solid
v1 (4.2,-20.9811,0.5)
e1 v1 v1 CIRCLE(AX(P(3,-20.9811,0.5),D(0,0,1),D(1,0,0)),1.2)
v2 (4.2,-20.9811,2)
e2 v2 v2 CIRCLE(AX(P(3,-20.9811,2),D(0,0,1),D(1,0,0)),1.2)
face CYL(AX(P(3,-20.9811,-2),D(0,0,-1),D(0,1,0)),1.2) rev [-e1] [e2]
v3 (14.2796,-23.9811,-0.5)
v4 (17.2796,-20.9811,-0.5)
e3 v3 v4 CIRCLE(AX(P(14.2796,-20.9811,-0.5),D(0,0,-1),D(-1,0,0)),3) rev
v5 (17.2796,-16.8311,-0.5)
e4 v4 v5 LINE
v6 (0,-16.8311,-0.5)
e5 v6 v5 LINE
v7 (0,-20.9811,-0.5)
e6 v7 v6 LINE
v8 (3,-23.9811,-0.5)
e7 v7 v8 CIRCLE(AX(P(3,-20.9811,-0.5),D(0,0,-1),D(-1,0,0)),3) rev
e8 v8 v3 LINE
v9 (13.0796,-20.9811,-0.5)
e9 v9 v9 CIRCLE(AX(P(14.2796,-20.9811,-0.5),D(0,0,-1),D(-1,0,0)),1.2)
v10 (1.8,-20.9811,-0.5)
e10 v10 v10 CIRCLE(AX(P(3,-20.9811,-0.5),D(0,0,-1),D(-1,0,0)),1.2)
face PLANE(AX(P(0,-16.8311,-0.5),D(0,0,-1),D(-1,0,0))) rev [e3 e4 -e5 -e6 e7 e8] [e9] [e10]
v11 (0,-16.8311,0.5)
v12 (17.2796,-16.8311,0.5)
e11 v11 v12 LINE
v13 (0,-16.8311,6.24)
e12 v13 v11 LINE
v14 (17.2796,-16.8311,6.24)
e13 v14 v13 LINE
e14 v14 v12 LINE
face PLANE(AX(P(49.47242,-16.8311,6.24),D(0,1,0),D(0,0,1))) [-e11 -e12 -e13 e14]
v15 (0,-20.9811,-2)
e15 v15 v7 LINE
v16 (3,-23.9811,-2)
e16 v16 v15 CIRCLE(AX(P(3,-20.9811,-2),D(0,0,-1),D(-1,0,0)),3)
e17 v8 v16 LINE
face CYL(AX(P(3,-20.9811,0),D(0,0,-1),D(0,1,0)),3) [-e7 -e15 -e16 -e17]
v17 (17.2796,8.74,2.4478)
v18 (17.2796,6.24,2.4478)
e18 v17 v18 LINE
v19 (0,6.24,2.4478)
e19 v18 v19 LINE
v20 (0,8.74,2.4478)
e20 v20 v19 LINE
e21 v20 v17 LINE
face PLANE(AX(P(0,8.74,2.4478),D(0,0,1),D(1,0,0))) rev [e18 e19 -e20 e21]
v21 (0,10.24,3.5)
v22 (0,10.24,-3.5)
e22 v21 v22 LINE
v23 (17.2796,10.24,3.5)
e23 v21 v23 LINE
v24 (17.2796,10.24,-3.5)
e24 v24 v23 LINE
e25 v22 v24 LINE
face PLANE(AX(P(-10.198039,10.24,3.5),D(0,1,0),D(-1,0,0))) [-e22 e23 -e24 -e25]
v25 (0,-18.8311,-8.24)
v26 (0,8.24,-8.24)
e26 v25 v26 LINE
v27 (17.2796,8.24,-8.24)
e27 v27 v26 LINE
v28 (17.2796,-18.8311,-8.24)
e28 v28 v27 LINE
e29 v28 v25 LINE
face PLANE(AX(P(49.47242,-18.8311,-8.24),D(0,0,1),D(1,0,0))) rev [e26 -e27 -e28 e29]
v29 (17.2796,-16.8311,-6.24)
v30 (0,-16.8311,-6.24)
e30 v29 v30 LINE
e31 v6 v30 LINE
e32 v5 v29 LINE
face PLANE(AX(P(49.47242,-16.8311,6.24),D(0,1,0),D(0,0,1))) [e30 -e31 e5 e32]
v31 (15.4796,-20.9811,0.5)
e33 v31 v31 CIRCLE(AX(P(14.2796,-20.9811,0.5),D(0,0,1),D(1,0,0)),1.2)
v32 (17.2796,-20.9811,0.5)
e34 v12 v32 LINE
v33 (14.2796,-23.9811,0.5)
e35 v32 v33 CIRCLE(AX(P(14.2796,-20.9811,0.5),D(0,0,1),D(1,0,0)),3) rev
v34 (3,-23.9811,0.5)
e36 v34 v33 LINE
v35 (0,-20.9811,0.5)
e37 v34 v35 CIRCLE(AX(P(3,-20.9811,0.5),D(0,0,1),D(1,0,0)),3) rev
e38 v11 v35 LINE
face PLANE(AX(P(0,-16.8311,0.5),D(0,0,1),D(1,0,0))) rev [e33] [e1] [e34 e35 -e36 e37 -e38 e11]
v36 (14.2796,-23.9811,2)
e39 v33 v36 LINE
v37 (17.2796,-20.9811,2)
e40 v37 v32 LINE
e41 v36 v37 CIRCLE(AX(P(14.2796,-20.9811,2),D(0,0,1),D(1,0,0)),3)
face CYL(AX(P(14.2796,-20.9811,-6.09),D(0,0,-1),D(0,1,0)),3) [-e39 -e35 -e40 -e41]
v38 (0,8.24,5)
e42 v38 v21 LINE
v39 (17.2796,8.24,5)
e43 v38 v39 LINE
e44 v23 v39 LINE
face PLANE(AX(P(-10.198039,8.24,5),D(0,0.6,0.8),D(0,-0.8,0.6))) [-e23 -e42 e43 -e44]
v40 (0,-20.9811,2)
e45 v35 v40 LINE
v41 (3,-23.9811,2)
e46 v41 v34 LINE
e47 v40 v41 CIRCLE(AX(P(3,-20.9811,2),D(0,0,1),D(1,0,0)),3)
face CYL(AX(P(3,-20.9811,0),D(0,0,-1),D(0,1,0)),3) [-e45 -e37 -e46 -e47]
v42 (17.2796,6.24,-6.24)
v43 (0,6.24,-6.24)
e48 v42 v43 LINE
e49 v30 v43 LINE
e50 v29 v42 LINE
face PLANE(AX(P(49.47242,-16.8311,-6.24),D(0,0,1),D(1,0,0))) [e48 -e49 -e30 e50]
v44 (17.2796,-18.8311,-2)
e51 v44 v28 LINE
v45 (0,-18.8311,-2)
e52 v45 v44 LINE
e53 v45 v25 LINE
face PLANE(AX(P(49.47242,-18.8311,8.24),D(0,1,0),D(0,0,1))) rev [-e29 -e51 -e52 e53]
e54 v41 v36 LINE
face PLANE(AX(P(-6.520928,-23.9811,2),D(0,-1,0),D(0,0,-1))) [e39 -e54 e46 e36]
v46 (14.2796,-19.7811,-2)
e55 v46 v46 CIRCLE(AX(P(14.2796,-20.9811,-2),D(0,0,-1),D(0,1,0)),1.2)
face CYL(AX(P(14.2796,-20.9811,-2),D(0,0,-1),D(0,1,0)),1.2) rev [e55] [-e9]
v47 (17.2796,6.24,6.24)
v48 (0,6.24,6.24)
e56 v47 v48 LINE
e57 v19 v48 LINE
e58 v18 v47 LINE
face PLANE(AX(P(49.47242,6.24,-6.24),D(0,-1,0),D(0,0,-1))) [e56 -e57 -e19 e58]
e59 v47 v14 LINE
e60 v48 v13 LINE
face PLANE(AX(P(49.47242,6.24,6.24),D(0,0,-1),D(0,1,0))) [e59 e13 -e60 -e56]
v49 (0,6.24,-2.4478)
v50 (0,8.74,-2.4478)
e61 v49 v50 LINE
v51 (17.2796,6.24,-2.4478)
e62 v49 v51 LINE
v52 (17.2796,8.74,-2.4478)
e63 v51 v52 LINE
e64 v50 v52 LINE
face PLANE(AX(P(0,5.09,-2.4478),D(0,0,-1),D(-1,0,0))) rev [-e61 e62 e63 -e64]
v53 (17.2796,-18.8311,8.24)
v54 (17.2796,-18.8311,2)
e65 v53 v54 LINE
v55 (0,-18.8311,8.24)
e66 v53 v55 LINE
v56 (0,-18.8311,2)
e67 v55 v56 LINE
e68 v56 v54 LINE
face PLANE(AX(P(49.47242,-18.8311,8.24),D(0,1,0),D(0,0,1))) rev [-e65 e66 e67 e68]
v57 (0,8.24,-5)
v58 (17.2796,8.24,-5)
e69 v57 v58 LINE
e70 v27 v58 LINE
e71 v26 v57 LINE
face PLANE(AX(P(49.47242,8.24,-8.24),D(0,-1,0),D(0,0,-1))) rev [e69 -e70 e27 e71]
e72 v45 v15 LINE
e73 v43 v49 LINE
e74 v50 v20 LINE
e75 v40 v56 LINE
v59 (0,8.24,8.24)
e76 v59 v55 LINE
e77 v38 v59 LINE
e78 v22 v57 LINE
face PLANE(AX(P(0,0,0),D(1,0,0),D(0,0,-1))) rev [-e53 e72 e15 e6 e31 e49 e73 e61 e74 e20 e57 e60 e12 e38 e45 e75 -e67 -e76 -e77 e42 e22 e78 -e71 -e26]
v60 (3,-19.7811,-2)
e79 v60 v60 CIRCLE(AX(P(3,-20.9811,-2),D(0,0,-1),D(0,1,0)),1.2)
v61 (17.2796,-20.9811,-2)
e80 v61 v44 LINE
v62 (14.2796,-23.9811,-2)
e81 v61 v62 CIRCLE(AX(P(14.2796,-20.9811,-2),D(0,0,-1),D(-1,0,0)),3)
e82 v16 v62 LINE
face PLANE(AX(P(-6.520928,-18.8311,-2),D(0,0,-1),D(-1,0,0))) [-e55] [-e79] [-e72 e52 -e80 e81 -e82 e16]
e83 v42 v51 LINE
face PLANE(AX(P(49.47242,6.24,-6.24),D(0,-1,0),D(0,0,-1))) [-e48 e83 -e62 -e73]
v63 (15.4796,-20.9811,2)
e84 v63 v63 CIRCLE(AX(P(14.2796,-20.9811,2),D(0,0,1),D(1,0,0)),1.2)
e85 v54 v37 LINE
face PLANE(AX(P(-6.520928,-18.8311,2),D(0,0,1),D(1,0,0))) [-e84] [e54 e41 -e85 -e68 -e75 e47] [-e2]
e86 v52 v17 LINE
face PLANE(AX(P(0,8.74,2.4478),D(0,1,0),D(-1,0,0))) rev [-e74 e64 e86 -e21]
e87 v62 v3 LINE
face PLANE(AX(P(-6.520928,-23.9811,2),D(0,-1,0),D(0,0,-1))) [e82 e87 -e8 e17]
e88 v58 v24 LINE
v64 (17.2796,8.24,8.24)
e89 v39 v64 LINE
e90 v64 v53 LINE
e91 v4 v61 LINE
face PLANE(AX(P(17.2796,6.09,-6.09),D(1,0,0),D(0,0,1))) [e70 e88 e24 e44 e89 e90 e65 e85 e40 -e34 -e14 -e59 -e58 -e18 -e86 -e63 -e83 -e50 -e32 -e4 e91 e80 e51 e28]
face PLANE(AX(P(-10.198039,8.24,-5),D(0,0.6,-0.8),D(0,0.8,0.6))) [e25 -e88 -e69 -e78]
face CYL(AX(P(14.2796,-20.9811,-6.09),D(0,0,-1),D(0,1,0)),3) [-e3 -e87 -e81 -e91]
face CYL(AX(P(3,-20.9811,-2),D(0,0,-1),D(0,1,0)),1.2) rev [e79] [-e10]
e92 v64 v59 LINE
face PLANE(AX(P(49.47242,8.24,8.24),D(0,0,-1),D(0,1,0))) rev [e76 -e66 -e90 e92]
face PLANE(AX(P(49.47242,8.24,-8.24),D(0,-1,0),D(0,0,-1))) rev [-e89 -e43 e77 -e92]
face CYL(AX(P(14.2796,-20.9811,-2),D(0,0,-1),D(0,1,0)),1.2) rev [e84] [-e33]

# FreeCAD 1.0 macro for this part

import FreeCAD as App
import Part
import Sketcher

V = App.Vector
Q = App.Units.Quantity


def edges_at(feature, points):
    """Names of the edges that pass closest to the given points."""
    edges = feature.Shape.Edges
    near = lambda p: min(range(len(edges)), key=lambda i: edges[i].distToShape(Part.Vertex(*p))[0])
    return sorted({f"Edge{near(p) + 1}" for p in points})

doc = App.newDocument("Part")
params = doc.addObject("Spreadsheet::Sheet", "Params")
for row, (alias, value) in enumerate([
    ("sketch1_height", "16.48 mm"),
    ("pad1_length", "17.2796 mm"),
    ("sketch2_height", "10 mm"),
    ("sketch2_height2", "7 mm"),
    ("pad2_length", "17.2796 mm"),
    ("sketch3_width", "3.65 mm"),
    ("sketch4_height", "4 mm"),
    ("sketch4_width", "5.15 mm"),
    ("pad3_length", "17.2796 mm"),
    ("fillet_radius", "3 mm"),
    ("sketch5_height", "1 mm"),
    ("sketch5_width", "7.15 mm"),
    ("sketch6_diameter", "2.4 mm"),
    ("hole_diameter", "2.4 mm"),
], start=1):
    params.set(f"A{row}", alias)
    params.set(f"B{row}", "=" + value)
    params.setAlias(f"B{row}", alias)

body = doc.addObject("PartDesign::Body", "Body")

# Sketch on YZ plane
sketch1 = body.newObject("Sketcher::SketchObject", "Sketch")
sketch1.AttachmentSupport = (doc.getObject("YZ_Plane"), [""])
sketch1.MapMode = "FlatFace"
sketch1.addGeometry([
    Part.LineSegment(V(8, 8, 0), V(-19, 8, 0)),  # 0
    Part.LineSegment(V(-19, 8, 0), V(-19, -8, 0)),  # 1
    Part.LineSegment(V(-19, -8, 0), V(8, -8, 0)),  # 2
    Part.LineSegment(V(8, -8, 0), V(8, 8, 0)),  # 3
    Part.LineSegment(V(-17, -6, 0), V(-17, 6, 0)),  # 4
    Part.LineSegment(V(-17, 6, 0), V(6, 6, 0)),  # 5
    Part.LineSegment(V(6, 6, 0), V(6, -6, 0)),  # 6
    Part.LineSegment(V(6, -6, 0), V(-17, -6, 0)),  # 7
], False)
sketch1.addConstraint([
    Sketcher.Constraint("Coincident", 0, 2, 1, 1),
    Sketcher.Constraint("Coincident", 1, 2, 2, 1),
    Sketcher.Constraint("Coincident", 2, 2, 3, 1),
    Sketcher.Constraint("Coincident", 3, 2, 0, 1),
    Sketcher.Constraint("Coincident", 4, 2, 5, 1),
    Sketcher.Constraint("Coincident", 5, 2, 6, 1),
    Sketcher.Constraint("Coincident", 6, 2, 7, 1),
    Sketcher.Constraint("Coincident", 7, 2, 4, 1),
    Sketcher.Constraint("Horizontal", 0),
    Sketcher.Constraint("Vertical", 1),
    Sketcher.Constraint("Horizontal", 2),
    Sketcher.Constraint("Vertical", 3),
    Sketcher.Constraint("Vertical", 4),
    Sketcher.Constraint("Horizontal", 5),
    Sketcher.Constraint("Vertical", 6),
    Sketcher.Constraint("Horizontal", 7),
    Sketcher.Constraint("DistanceX", 0, 2, 4, 2, Q("2 mm")),
    Sketcher.Constraint("DistanceY", 4, 2, 0, 2, Q("2 mm")),
    Sketcher.Constraint("DistanceX", 5, 2, 3, 2, Q("2 mm")),
    Sketcher.Constraint("DistanceY", 2, 2, 6, 2, Q("2 mm")),
    Sketcher.Constraint("DistanceY", 1, 2, 1, 1, Q("16.48 mm")),
    Sketcher.Constraint("DistanceY", -1, 1, 0, 2, Q("8.24 mm")),
    Sketcher.Constraint("DistanceX", -1, 1, 2, 2, Q("8.24 mm")),
    Sketcher.Constraint("DistanceX", 0, 2, 0, 1, Q("27.0711 mm")),
])
sketch1.setExpression("Constraints[20]", "Params.sketch1_height")
pad1 = body.newObject("PartDesign::Pad", "Pad")
pad1.Profile = sketch1
pad1.setExpression("Length", "Params.pad1_length")

# Sketch on YZ plane
sketch2 = body.newObject("Sketcher::SketchObject", "Sketch001")
sketch2.AttachmentSupport = (doc.getObject("YZ_Plane"), [""])
sketch2.MapMode = "FlatFace"
sketch2.AttachmentOffset = App.Placement(V(0, 0, 17.2796), App.Rotation())
sketch2.addGeometry([
    Part.LineSegment(V(8.2, 5, 0), V(8.2, -5, 0)),
    Part.LineSegment(V(8.2, -5, 0), V(10.2, -3.5, 0)),
    Part.LineSegment(V(10.2, -3.5, 0), V(10.2, 3.5, 0)),
    Part.LineSegment(V(10.2, 3.5, 0), V(8.2, 5, 0)),
], False)
sketch2.addConstraint([
    Sketcher.Constraint("Coincident", 0, 2, 1, 1),
    Sketcher.Constraint("Coincident", 1, 2, 2, 1),
    Sketcher.Constraint("Coincident", 2, 2, 3, 1),
    Sketcher.Constraint("Coincident", 3, 2, 0, 1),
    Sketcher.Constraint("Vertical", 0),
    Sketcher.Constraint("Vertical", 2),
    Sketcher.Constraint("Equal", 1, 3),
    Sketcher.Constraint("DistanceY", 0, 2, 0, 1, Q("10 mm")),
    Sketcher.Constraint("DistanceY", 2, 1, 2, 2, Q("7 mm")),
    Sketcher.Constraint("DistanceY", 0, 2, -1, 1, Q("5 mm")),
    Sketcher.Constraint("DistanceX", 0, 2, 1, 2, Q("2 mm")),
    Sketcher.Constraint("DistanceX", -1, 1, 0, 2, Q("8.24 mm")),
])
sketch2.setExpression("Constraints[7]", "Params.sketch2_height")
sketch2.setExpression("Constraints[8]", "Params.sketch2_height2")
pad2 = body.newObject("PartDesign::Pad", "Pad001")
pad2.Profile = sketch2
pad2.setExpression("Length", "Params.pad2_length")
pad2.Reversed = True

# Sketch on YZ plane
sketch3 = body.newObject("Sketcher::SketchObject", "Sketch002")
sketch3.AttachmentSupport = (doc.getObject("YZ_Plane"), [""])
sketch3.MapMode = "FlatFace"
sketch3.AttachmentOffset = App.Placement(V(0, 0, 17.2796), App.Rotation())
sketch3.addGeometry([
    Part.LineSegment(V(8.7, 2.4, 0), V(5.1, 2.4, 0)),
    Part.LineSegment(V(5.1, 2.4, 0), V(5.1, -2.4, 0)),
    Part.LineSegment(V(5.1, -2.4, 0), V(8.7, -2.4, 0)),
    Part.LineSegment(V(8.7, -2.4, 0), V(8.7, 2.4, 0)),
], False)
sketch3.addConstraint([
    Sketcher.Constraint("Coincident", 0, 2, 1, 1),
    Sketcher.Constraint("Coincident", 1, 2, 2, 1),
    Sketcher.Constraint("Coincident", 2, 2, 3, 1),
    Sketcher.Constraint("Coincident", 3, 2, 0, 1),
    Sketcher.Constraint("Horizontal", 0),
    Sketcher.Constraint("Vertical", 1),
    Sketcher.Constraint("Horizontal", 2),
    Sketcher.Constraint("Vertical", 3),
    Sketcher.Constraint("DistanceX", 0, 2, 0, 1, Q("3.65 mm")),
    Sketcher.Constraint("DistanceX", -1, 1, 0, 2, Q("5.09 mm")),
    Sketcher.Constraint("DistanceY", 1, 2, 1, 1, Q("4.8956 mm")),
    Sketcher.Constraint("DistanceY", -1, 1, 0, 2, Q("2.4478 mm")),
])
sketch3.setExpression("Constraints[8]", "Params.sketch3_width")
pocket1 = body.newObject("PartDesign::Pocket", "Pocket")
pocket1.Profile = sketch3
pocket1.Type = "ThroughAll"

# Sketch on YZ plane
sketch4 = body.newObject("Sketcher::SketchObject", "Sketch003")
sketch4.AttachmentSupport = (doc.getObject("YZ_Plane"), [""])
sketch4.MapMode = "FlatFace"
sketch4.AttachmentOffset = App.Placement(V(0, 0, 17.2796), App.Rotation())
sketch4.addGeometry([
    Part.LineSegment(V(-18.8, 2, 0), V(-24, 2, 0)),
    Part.LineSegment(V(-24, 2, 0), V(-24, -2, 0)),
    Part.LineSegment(V(-24, -2, 0), V(-18.8, -2, 0)),
    Part.LineSegment(V(-18.8, -2, 0), V(-18.8, 2, 0)),
], False)
sketch4.addConstraint([
    Sketcher.Constraint("Coincident", 0, 2, 1, 1),
    Sketcher.Constraint("Coincident", 1, 2, 2, 1),
    Sketcher.Constraint("Coincident", 2, 2, 3, 1),
    Sketcher.Constraint("Coincident", 3, 2, 0, 1),
    Sketcher.Constraint("Horizontal", 0),
    Sketcher.Constraint("Vertical", 1),
    Sketcher.Constraint("Horizontal", 2),
    Sketcher.Constraint("Vertical", 3),
    Sketcher.Constraint("DistanceY", 1, 2, 1, 1, Q("4 mm")),
    Sketcher.Constraint("DistanceY", -1, 1, 0, 2, Q("2 mm")),
    Sketcher.Constraint("DistanceX", 0, 2, 0, 1, Q("5.15 mm")),
    Sketcher.Constraint("DistanceX", 0, 2, -1, 1, Q("23.9811 mm")),
])
sketch4.setExpression("Constraints[8]", "Params.sketch4_height")
sketch4.setExpression("Constraints[10]", "Params.sketch4_width")
pad3 = body.newObject("PartDesign::Pad", "Pad002")
pad3.Profile = sketch4
pad3.setExpression("Length", "Params.pad3_length")
pad3.Reversed = True
doc.recompute()

fillet = body.newObject("PartDesign::Fillet", "Fillet")
fillet.Base = (pad3, edges_at(pad3, [(17.28, -23.981, 0), (0, -23.981, 0)]))
fillet.setExpression("Radius", "Params.fillet_radius")

# Sketch on YZ plane
sketch5 = body.newObject("Sketcher::SketchObject", "Sketch004")
sketch5.AttachmentSupport = (doc.getObject("YZ_Plane"), [""])
sketch5.MapMode = "FlatFace"
sketch5.AttachmentOffset = App.Placement(V(0, 0, 17.2796), App.Rotation())
sketch5.addGeometry([
    Part.LineSegment(V(-16.8, 0.5, 0), V(-24, 0.5, 0)),
    Part.LineSegment(V(-24, 0.5, 0), V(-24, -0.5, 0)),
    Part.LineSegment(V(-24, -0.5, 0), V(-16.8, -0.5, 0)),
    Part.LineSegment(V(-16.8, -0.5, 0), V(-16.8, 0.5, 0)),
], False)
sketch5.addConstraint([
    Sketcher.Constraint("Coincident", 0, 2, 1, 1),
    Sketcher.Constraint("Coincident", 1, 2, 2, 1),
    Sketcher.Constraint("Coincident", 2, 2, 3, 1),
    Sketcher.Constraint("Coincident", 3, 2, 0, 1),
    Sketcher.Constraint("Horizontal", 0),
    Sketcher.Constraint("Vertical", 1),
    Sketcher.Constraint("Horizontal", 2),
    Sketcher.Constraint("Vertical", 3),
    Sketcher.Constraint("DistanceY", 1, 2, 1, 1, Q("1 mm")),
    Sketcher.Constraint("DistanceX", 0, 2, 0, 1, Q("7.15 mm")),
    Sketcher.Constraint("DistanceY", -1, 1, 0, 2, Q("0.5 mm")),
    Sketcher.Constraint("DistanceX", 0, 2, -1, 1, Q("23.9811 mm")),
])
sketch5.setExpression("Constraints[8]", "Params.sketch5_height")
sketch5.setExpression("Constraints[9]", "Params.sketch5_width")
pocket2 = body.newObject("PartDesign::Pocket", "Pocket001")
pocket2.Profile = sketch5
pocket2.Type = "ThroughAll"

# Sketch on XY plane
sketch6 = body.newObject("Sketcher::SketchObject", "Sketch005")
sketch6.AttachmentSupport = (doc.getObject("XY_Plane"), [""])
sketch6.MapMode = "FlatFace"
sketch6.AttachmentOffset = App.Placement(V(0, 0, -2), App.Rotation())
sketch6.addGeometry([
    Part.Circle(V(14.3, -21, 0), V(0, 0, 1), 1.2),
    Part.Circle(V(3, -21, 0), V(0, 0, 1), 1.2),
], False)
sketch6.addConstraint([
    Sketcher.Constraint("Equal", 0, 1),
    Sketcher.Constraint("Horizontal", 0, 3, 1, 3),
    Sketcher.Constraint("Diameter", 0, Q("2.4 mm")),
    Sketcher.Constraint("DistanceX", -1, 1, 1, 3, Q("3 mm")),
    Sketcher.Constraint("DistanceX", -1, 1, 0, 3, Q("14.2796 mm")),
    Sketcher.Constraint("DistanceY", 0, 3, -1, 1, Q("20.9811 mm")),
])
sketch6.setExpression("Constraints[2]", "Params.sketch6_diameter")
doc.recompute()
hole = body.newObject("PartDesign::Hole", "Hole")
hole.Profile = sketch6
hole.ThreadType = "None"
hole.setExpression("Diameter", "Params.hole_diameter")
hole.DepthType = "ThroughAll"
hole.Reversed = True

doc.recompute()
